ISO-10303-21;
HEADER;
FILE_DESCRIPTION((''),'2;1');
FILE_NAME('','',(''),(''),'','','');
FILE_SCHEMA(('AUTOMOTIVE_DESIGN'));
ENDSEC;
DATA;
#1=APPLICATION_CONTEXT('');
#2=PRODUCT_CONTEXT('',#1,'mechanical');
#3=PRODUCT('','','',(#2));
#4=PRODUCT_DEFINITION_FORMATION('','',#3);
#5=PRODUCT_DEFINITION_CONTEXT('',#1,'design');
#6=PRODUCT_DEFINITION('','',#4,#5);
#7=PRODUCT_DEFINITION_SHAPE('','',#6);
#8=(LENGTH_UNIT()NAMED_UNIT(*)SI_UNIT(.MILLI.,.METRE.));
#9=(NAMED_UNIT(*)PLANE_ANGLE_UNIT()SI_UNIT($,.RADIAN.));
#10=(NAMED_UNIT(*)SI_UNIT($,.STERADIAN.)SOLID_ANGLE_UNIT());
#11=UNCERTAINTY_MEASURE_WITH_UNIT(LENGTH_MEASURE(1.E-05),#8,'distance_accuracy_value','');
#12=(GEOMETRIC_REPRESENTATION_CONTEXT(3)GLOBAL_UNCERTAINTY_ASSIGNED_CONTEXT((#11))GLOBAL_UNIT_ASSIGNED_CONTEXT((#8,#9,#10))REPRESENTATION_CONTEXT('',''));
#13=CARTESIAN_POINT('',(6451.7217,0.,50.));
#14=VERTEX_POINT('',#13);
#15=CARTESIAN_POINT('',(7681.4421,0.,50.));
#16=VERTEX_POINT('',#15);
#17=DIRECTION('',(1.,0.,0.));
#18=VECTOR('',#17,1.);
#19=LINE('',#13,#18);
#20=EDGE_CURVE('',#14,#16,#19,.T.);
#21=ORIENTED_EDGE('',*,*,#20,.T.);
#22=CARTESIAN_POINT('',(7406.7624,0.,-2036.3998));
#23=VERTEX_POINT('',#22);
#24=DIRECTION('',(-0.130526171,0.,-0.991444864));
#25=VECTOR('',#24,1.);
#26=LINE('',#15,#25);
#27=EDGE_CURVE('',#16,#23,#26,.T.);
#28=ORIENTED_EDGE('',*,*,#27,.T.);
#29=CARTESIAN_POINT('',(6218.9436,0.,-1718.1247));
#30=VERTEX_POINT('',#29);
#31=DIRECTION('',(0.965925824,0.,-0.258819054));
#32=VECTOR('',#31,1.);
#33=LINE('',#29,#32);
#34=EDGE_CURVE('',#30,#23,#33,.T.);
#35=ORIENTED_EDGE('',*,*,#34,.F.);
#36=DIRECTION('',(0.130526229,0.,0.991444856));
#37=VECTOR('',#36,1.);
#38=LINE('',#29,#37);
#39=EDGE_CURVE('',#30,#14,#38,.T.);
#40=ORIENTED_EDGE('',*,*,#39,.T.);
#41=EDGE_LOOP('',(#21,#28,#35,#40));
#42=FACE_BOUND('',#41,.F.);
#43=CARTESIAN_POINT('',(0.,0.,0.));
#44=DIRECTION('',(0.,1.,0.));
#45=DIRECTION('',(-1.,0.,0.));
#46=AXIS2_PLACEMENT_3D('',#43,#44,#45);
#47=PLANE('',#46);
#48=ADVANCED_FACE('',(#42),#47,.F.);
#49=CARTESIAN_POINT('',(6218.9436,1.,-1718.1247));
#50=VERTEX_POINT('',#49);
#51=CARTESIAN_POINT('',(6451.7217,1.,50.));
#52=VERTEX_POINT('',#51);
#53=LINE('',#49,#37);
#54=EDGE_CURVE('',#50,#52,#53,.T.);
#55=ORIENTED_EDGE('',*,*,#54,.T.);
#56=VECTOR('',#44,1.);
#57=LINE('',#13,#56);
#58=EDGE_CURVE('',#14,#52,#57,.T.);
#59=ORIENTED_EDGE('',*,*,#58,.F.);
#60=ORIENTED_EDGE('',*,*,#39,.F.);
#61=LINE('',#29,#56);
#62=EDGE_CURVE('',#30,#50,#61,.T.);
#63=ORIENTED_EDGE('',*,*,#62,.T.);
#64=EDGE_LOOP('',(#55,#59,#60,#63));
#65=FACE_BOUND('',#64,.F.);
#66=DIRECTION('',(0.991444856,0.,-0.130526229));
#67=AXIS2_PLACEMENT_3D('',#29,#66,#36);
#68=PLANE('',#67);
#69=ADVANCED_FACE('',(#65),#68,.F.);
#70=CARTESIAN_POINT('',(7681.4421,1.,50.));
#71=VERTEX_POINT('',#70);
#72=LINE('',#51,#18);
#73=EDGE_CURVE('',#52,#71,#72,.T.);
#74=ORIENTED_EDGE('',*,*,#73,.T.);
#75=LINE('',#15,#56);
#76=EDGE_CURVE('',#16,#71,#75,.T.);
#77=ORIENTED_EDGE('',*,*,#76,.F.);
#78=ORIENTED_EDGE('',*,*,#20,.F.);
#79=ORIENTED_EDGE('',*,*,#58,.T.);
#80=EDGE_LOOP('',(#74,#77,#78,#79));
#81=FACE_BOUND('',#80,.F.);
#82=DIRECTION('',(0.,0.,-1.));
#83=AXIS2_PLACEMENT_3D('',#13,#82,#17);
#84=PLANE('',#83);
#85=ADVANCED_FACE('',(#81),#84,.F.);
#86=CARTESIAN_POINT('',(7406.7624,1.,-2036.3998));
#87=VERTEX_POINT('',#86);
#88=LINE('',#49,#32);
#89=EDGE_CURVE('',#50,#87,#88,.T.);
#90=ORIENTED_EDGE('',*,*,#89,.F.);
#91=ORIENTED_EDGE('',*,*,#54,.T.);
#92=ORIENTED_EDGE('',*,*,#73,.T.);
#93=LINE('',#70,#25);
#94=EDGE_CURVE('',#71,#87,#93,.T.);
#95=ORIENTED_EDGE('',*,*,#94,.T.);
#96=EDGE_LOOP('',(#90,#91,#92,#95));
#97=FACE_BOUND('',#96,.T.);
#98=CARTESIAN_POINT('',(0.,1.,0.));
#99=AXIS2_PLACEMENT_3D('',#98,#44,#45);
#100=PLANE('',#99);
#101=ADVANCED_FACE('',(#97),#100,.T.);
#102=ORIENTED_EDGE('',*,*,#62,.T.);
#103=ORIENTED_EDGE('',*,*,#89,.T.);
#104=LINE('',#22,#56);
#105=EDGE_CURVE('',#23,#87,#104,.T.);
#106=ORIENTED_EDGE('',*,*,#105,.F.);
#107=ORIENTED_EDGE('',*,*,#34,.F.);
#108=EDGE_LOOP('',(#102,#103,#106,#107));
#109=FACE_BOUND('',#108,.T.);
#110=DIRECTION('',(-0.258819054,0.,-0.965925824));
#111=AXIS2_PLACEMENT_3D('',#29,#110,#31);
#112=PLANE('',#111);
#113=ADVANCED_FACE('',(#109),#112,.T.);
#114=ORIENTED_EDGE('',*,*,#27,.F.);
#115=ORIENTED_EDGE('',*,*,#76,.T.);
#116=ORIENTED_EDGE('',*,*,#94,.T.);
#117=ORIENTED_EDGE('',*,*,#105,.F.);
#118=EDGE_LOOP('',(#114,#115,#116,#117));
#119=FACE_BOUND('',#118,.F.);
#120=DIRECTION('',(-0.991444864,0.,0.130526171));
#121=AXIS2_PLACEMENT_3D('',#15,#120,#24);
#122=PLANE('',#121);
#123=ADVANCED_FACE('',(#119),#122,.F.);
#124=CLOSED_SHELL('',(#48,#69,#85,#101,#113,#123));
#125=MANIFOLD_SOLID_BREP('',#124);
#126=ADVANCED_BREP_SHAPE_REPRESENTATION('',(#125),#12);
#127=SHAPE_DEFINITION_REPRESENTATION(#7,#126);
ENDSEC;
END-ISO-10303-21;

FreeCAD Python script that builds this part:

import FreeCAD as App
import Part
import Sketcher

V = App.Vector
Q = App.Units.Quantity

doc = App.newDocument("Part")
body = doc.addObject("PartDesign::Body", "Body")

sketch1 = body.newObject("Sketcher::SketchObject", "Sketch")
sketch1.AttachmentSupport = (doc.getObject("XZ_Plane"), [""])
sketch1.MapMode = "FlatFace"
sketch1.addGeometry([
    Part.LineSegment(V(6451.7217, 50, 0), V(7681.4421, 50, 0)),
    Part.LineSegment(V(7681.4421, 50, 0), V(7406.7624, -2036.3998, 0)),
    Part.LineSegment(V(7406.7624, -2036.3998, 0), V(6218.9436, -1718.1247, 0)),
    Part.LineSegment(V(6218.9436, -1718.1247, 0), V(6451.7217, 50, 0)),
], False)
sketch1.addConstraint([
    Sketcher.Constraint("Coincident", 0, 2, 1, 1),
    Sketcher.Constraint("Coincident", 1, 2, 2, 1),
    Sketcher.Constraint("Coincident", 2, 2, 3, 1),
    Sketcher.Constraint("Coincident", 3, 2, 0, 1),
    Sketcher.Constraint("Horizontal", 0),
    Sketcher.Constraint("Parallel", 1, 3),
    Sketcher.Constraint("Angle", 2, Q("165 deg")),
    Sketcher.Constraint("DistanceY", -1, 1, 0, 2, 50.0),
    Sketcher.Constraint("Angle", 1, Q("-97.5 deg")),
    Sketcher.Constraint("DistanceX", 0, 1, 0, 2, 1229.7204),
    Sketcher.Constraint("DistanceX", -1, 1, 0, 2, 7681.442),
    Sketcher.Constraint("DistanceX", 2, 2, 3, 2, 232.778),
])
pad1 = body.newObject("PartDesign::Pad", "Pad")
pad1.Profile = sketch1
pad1.Length = 1
pad1.Reversed = True

doc.recompute()
